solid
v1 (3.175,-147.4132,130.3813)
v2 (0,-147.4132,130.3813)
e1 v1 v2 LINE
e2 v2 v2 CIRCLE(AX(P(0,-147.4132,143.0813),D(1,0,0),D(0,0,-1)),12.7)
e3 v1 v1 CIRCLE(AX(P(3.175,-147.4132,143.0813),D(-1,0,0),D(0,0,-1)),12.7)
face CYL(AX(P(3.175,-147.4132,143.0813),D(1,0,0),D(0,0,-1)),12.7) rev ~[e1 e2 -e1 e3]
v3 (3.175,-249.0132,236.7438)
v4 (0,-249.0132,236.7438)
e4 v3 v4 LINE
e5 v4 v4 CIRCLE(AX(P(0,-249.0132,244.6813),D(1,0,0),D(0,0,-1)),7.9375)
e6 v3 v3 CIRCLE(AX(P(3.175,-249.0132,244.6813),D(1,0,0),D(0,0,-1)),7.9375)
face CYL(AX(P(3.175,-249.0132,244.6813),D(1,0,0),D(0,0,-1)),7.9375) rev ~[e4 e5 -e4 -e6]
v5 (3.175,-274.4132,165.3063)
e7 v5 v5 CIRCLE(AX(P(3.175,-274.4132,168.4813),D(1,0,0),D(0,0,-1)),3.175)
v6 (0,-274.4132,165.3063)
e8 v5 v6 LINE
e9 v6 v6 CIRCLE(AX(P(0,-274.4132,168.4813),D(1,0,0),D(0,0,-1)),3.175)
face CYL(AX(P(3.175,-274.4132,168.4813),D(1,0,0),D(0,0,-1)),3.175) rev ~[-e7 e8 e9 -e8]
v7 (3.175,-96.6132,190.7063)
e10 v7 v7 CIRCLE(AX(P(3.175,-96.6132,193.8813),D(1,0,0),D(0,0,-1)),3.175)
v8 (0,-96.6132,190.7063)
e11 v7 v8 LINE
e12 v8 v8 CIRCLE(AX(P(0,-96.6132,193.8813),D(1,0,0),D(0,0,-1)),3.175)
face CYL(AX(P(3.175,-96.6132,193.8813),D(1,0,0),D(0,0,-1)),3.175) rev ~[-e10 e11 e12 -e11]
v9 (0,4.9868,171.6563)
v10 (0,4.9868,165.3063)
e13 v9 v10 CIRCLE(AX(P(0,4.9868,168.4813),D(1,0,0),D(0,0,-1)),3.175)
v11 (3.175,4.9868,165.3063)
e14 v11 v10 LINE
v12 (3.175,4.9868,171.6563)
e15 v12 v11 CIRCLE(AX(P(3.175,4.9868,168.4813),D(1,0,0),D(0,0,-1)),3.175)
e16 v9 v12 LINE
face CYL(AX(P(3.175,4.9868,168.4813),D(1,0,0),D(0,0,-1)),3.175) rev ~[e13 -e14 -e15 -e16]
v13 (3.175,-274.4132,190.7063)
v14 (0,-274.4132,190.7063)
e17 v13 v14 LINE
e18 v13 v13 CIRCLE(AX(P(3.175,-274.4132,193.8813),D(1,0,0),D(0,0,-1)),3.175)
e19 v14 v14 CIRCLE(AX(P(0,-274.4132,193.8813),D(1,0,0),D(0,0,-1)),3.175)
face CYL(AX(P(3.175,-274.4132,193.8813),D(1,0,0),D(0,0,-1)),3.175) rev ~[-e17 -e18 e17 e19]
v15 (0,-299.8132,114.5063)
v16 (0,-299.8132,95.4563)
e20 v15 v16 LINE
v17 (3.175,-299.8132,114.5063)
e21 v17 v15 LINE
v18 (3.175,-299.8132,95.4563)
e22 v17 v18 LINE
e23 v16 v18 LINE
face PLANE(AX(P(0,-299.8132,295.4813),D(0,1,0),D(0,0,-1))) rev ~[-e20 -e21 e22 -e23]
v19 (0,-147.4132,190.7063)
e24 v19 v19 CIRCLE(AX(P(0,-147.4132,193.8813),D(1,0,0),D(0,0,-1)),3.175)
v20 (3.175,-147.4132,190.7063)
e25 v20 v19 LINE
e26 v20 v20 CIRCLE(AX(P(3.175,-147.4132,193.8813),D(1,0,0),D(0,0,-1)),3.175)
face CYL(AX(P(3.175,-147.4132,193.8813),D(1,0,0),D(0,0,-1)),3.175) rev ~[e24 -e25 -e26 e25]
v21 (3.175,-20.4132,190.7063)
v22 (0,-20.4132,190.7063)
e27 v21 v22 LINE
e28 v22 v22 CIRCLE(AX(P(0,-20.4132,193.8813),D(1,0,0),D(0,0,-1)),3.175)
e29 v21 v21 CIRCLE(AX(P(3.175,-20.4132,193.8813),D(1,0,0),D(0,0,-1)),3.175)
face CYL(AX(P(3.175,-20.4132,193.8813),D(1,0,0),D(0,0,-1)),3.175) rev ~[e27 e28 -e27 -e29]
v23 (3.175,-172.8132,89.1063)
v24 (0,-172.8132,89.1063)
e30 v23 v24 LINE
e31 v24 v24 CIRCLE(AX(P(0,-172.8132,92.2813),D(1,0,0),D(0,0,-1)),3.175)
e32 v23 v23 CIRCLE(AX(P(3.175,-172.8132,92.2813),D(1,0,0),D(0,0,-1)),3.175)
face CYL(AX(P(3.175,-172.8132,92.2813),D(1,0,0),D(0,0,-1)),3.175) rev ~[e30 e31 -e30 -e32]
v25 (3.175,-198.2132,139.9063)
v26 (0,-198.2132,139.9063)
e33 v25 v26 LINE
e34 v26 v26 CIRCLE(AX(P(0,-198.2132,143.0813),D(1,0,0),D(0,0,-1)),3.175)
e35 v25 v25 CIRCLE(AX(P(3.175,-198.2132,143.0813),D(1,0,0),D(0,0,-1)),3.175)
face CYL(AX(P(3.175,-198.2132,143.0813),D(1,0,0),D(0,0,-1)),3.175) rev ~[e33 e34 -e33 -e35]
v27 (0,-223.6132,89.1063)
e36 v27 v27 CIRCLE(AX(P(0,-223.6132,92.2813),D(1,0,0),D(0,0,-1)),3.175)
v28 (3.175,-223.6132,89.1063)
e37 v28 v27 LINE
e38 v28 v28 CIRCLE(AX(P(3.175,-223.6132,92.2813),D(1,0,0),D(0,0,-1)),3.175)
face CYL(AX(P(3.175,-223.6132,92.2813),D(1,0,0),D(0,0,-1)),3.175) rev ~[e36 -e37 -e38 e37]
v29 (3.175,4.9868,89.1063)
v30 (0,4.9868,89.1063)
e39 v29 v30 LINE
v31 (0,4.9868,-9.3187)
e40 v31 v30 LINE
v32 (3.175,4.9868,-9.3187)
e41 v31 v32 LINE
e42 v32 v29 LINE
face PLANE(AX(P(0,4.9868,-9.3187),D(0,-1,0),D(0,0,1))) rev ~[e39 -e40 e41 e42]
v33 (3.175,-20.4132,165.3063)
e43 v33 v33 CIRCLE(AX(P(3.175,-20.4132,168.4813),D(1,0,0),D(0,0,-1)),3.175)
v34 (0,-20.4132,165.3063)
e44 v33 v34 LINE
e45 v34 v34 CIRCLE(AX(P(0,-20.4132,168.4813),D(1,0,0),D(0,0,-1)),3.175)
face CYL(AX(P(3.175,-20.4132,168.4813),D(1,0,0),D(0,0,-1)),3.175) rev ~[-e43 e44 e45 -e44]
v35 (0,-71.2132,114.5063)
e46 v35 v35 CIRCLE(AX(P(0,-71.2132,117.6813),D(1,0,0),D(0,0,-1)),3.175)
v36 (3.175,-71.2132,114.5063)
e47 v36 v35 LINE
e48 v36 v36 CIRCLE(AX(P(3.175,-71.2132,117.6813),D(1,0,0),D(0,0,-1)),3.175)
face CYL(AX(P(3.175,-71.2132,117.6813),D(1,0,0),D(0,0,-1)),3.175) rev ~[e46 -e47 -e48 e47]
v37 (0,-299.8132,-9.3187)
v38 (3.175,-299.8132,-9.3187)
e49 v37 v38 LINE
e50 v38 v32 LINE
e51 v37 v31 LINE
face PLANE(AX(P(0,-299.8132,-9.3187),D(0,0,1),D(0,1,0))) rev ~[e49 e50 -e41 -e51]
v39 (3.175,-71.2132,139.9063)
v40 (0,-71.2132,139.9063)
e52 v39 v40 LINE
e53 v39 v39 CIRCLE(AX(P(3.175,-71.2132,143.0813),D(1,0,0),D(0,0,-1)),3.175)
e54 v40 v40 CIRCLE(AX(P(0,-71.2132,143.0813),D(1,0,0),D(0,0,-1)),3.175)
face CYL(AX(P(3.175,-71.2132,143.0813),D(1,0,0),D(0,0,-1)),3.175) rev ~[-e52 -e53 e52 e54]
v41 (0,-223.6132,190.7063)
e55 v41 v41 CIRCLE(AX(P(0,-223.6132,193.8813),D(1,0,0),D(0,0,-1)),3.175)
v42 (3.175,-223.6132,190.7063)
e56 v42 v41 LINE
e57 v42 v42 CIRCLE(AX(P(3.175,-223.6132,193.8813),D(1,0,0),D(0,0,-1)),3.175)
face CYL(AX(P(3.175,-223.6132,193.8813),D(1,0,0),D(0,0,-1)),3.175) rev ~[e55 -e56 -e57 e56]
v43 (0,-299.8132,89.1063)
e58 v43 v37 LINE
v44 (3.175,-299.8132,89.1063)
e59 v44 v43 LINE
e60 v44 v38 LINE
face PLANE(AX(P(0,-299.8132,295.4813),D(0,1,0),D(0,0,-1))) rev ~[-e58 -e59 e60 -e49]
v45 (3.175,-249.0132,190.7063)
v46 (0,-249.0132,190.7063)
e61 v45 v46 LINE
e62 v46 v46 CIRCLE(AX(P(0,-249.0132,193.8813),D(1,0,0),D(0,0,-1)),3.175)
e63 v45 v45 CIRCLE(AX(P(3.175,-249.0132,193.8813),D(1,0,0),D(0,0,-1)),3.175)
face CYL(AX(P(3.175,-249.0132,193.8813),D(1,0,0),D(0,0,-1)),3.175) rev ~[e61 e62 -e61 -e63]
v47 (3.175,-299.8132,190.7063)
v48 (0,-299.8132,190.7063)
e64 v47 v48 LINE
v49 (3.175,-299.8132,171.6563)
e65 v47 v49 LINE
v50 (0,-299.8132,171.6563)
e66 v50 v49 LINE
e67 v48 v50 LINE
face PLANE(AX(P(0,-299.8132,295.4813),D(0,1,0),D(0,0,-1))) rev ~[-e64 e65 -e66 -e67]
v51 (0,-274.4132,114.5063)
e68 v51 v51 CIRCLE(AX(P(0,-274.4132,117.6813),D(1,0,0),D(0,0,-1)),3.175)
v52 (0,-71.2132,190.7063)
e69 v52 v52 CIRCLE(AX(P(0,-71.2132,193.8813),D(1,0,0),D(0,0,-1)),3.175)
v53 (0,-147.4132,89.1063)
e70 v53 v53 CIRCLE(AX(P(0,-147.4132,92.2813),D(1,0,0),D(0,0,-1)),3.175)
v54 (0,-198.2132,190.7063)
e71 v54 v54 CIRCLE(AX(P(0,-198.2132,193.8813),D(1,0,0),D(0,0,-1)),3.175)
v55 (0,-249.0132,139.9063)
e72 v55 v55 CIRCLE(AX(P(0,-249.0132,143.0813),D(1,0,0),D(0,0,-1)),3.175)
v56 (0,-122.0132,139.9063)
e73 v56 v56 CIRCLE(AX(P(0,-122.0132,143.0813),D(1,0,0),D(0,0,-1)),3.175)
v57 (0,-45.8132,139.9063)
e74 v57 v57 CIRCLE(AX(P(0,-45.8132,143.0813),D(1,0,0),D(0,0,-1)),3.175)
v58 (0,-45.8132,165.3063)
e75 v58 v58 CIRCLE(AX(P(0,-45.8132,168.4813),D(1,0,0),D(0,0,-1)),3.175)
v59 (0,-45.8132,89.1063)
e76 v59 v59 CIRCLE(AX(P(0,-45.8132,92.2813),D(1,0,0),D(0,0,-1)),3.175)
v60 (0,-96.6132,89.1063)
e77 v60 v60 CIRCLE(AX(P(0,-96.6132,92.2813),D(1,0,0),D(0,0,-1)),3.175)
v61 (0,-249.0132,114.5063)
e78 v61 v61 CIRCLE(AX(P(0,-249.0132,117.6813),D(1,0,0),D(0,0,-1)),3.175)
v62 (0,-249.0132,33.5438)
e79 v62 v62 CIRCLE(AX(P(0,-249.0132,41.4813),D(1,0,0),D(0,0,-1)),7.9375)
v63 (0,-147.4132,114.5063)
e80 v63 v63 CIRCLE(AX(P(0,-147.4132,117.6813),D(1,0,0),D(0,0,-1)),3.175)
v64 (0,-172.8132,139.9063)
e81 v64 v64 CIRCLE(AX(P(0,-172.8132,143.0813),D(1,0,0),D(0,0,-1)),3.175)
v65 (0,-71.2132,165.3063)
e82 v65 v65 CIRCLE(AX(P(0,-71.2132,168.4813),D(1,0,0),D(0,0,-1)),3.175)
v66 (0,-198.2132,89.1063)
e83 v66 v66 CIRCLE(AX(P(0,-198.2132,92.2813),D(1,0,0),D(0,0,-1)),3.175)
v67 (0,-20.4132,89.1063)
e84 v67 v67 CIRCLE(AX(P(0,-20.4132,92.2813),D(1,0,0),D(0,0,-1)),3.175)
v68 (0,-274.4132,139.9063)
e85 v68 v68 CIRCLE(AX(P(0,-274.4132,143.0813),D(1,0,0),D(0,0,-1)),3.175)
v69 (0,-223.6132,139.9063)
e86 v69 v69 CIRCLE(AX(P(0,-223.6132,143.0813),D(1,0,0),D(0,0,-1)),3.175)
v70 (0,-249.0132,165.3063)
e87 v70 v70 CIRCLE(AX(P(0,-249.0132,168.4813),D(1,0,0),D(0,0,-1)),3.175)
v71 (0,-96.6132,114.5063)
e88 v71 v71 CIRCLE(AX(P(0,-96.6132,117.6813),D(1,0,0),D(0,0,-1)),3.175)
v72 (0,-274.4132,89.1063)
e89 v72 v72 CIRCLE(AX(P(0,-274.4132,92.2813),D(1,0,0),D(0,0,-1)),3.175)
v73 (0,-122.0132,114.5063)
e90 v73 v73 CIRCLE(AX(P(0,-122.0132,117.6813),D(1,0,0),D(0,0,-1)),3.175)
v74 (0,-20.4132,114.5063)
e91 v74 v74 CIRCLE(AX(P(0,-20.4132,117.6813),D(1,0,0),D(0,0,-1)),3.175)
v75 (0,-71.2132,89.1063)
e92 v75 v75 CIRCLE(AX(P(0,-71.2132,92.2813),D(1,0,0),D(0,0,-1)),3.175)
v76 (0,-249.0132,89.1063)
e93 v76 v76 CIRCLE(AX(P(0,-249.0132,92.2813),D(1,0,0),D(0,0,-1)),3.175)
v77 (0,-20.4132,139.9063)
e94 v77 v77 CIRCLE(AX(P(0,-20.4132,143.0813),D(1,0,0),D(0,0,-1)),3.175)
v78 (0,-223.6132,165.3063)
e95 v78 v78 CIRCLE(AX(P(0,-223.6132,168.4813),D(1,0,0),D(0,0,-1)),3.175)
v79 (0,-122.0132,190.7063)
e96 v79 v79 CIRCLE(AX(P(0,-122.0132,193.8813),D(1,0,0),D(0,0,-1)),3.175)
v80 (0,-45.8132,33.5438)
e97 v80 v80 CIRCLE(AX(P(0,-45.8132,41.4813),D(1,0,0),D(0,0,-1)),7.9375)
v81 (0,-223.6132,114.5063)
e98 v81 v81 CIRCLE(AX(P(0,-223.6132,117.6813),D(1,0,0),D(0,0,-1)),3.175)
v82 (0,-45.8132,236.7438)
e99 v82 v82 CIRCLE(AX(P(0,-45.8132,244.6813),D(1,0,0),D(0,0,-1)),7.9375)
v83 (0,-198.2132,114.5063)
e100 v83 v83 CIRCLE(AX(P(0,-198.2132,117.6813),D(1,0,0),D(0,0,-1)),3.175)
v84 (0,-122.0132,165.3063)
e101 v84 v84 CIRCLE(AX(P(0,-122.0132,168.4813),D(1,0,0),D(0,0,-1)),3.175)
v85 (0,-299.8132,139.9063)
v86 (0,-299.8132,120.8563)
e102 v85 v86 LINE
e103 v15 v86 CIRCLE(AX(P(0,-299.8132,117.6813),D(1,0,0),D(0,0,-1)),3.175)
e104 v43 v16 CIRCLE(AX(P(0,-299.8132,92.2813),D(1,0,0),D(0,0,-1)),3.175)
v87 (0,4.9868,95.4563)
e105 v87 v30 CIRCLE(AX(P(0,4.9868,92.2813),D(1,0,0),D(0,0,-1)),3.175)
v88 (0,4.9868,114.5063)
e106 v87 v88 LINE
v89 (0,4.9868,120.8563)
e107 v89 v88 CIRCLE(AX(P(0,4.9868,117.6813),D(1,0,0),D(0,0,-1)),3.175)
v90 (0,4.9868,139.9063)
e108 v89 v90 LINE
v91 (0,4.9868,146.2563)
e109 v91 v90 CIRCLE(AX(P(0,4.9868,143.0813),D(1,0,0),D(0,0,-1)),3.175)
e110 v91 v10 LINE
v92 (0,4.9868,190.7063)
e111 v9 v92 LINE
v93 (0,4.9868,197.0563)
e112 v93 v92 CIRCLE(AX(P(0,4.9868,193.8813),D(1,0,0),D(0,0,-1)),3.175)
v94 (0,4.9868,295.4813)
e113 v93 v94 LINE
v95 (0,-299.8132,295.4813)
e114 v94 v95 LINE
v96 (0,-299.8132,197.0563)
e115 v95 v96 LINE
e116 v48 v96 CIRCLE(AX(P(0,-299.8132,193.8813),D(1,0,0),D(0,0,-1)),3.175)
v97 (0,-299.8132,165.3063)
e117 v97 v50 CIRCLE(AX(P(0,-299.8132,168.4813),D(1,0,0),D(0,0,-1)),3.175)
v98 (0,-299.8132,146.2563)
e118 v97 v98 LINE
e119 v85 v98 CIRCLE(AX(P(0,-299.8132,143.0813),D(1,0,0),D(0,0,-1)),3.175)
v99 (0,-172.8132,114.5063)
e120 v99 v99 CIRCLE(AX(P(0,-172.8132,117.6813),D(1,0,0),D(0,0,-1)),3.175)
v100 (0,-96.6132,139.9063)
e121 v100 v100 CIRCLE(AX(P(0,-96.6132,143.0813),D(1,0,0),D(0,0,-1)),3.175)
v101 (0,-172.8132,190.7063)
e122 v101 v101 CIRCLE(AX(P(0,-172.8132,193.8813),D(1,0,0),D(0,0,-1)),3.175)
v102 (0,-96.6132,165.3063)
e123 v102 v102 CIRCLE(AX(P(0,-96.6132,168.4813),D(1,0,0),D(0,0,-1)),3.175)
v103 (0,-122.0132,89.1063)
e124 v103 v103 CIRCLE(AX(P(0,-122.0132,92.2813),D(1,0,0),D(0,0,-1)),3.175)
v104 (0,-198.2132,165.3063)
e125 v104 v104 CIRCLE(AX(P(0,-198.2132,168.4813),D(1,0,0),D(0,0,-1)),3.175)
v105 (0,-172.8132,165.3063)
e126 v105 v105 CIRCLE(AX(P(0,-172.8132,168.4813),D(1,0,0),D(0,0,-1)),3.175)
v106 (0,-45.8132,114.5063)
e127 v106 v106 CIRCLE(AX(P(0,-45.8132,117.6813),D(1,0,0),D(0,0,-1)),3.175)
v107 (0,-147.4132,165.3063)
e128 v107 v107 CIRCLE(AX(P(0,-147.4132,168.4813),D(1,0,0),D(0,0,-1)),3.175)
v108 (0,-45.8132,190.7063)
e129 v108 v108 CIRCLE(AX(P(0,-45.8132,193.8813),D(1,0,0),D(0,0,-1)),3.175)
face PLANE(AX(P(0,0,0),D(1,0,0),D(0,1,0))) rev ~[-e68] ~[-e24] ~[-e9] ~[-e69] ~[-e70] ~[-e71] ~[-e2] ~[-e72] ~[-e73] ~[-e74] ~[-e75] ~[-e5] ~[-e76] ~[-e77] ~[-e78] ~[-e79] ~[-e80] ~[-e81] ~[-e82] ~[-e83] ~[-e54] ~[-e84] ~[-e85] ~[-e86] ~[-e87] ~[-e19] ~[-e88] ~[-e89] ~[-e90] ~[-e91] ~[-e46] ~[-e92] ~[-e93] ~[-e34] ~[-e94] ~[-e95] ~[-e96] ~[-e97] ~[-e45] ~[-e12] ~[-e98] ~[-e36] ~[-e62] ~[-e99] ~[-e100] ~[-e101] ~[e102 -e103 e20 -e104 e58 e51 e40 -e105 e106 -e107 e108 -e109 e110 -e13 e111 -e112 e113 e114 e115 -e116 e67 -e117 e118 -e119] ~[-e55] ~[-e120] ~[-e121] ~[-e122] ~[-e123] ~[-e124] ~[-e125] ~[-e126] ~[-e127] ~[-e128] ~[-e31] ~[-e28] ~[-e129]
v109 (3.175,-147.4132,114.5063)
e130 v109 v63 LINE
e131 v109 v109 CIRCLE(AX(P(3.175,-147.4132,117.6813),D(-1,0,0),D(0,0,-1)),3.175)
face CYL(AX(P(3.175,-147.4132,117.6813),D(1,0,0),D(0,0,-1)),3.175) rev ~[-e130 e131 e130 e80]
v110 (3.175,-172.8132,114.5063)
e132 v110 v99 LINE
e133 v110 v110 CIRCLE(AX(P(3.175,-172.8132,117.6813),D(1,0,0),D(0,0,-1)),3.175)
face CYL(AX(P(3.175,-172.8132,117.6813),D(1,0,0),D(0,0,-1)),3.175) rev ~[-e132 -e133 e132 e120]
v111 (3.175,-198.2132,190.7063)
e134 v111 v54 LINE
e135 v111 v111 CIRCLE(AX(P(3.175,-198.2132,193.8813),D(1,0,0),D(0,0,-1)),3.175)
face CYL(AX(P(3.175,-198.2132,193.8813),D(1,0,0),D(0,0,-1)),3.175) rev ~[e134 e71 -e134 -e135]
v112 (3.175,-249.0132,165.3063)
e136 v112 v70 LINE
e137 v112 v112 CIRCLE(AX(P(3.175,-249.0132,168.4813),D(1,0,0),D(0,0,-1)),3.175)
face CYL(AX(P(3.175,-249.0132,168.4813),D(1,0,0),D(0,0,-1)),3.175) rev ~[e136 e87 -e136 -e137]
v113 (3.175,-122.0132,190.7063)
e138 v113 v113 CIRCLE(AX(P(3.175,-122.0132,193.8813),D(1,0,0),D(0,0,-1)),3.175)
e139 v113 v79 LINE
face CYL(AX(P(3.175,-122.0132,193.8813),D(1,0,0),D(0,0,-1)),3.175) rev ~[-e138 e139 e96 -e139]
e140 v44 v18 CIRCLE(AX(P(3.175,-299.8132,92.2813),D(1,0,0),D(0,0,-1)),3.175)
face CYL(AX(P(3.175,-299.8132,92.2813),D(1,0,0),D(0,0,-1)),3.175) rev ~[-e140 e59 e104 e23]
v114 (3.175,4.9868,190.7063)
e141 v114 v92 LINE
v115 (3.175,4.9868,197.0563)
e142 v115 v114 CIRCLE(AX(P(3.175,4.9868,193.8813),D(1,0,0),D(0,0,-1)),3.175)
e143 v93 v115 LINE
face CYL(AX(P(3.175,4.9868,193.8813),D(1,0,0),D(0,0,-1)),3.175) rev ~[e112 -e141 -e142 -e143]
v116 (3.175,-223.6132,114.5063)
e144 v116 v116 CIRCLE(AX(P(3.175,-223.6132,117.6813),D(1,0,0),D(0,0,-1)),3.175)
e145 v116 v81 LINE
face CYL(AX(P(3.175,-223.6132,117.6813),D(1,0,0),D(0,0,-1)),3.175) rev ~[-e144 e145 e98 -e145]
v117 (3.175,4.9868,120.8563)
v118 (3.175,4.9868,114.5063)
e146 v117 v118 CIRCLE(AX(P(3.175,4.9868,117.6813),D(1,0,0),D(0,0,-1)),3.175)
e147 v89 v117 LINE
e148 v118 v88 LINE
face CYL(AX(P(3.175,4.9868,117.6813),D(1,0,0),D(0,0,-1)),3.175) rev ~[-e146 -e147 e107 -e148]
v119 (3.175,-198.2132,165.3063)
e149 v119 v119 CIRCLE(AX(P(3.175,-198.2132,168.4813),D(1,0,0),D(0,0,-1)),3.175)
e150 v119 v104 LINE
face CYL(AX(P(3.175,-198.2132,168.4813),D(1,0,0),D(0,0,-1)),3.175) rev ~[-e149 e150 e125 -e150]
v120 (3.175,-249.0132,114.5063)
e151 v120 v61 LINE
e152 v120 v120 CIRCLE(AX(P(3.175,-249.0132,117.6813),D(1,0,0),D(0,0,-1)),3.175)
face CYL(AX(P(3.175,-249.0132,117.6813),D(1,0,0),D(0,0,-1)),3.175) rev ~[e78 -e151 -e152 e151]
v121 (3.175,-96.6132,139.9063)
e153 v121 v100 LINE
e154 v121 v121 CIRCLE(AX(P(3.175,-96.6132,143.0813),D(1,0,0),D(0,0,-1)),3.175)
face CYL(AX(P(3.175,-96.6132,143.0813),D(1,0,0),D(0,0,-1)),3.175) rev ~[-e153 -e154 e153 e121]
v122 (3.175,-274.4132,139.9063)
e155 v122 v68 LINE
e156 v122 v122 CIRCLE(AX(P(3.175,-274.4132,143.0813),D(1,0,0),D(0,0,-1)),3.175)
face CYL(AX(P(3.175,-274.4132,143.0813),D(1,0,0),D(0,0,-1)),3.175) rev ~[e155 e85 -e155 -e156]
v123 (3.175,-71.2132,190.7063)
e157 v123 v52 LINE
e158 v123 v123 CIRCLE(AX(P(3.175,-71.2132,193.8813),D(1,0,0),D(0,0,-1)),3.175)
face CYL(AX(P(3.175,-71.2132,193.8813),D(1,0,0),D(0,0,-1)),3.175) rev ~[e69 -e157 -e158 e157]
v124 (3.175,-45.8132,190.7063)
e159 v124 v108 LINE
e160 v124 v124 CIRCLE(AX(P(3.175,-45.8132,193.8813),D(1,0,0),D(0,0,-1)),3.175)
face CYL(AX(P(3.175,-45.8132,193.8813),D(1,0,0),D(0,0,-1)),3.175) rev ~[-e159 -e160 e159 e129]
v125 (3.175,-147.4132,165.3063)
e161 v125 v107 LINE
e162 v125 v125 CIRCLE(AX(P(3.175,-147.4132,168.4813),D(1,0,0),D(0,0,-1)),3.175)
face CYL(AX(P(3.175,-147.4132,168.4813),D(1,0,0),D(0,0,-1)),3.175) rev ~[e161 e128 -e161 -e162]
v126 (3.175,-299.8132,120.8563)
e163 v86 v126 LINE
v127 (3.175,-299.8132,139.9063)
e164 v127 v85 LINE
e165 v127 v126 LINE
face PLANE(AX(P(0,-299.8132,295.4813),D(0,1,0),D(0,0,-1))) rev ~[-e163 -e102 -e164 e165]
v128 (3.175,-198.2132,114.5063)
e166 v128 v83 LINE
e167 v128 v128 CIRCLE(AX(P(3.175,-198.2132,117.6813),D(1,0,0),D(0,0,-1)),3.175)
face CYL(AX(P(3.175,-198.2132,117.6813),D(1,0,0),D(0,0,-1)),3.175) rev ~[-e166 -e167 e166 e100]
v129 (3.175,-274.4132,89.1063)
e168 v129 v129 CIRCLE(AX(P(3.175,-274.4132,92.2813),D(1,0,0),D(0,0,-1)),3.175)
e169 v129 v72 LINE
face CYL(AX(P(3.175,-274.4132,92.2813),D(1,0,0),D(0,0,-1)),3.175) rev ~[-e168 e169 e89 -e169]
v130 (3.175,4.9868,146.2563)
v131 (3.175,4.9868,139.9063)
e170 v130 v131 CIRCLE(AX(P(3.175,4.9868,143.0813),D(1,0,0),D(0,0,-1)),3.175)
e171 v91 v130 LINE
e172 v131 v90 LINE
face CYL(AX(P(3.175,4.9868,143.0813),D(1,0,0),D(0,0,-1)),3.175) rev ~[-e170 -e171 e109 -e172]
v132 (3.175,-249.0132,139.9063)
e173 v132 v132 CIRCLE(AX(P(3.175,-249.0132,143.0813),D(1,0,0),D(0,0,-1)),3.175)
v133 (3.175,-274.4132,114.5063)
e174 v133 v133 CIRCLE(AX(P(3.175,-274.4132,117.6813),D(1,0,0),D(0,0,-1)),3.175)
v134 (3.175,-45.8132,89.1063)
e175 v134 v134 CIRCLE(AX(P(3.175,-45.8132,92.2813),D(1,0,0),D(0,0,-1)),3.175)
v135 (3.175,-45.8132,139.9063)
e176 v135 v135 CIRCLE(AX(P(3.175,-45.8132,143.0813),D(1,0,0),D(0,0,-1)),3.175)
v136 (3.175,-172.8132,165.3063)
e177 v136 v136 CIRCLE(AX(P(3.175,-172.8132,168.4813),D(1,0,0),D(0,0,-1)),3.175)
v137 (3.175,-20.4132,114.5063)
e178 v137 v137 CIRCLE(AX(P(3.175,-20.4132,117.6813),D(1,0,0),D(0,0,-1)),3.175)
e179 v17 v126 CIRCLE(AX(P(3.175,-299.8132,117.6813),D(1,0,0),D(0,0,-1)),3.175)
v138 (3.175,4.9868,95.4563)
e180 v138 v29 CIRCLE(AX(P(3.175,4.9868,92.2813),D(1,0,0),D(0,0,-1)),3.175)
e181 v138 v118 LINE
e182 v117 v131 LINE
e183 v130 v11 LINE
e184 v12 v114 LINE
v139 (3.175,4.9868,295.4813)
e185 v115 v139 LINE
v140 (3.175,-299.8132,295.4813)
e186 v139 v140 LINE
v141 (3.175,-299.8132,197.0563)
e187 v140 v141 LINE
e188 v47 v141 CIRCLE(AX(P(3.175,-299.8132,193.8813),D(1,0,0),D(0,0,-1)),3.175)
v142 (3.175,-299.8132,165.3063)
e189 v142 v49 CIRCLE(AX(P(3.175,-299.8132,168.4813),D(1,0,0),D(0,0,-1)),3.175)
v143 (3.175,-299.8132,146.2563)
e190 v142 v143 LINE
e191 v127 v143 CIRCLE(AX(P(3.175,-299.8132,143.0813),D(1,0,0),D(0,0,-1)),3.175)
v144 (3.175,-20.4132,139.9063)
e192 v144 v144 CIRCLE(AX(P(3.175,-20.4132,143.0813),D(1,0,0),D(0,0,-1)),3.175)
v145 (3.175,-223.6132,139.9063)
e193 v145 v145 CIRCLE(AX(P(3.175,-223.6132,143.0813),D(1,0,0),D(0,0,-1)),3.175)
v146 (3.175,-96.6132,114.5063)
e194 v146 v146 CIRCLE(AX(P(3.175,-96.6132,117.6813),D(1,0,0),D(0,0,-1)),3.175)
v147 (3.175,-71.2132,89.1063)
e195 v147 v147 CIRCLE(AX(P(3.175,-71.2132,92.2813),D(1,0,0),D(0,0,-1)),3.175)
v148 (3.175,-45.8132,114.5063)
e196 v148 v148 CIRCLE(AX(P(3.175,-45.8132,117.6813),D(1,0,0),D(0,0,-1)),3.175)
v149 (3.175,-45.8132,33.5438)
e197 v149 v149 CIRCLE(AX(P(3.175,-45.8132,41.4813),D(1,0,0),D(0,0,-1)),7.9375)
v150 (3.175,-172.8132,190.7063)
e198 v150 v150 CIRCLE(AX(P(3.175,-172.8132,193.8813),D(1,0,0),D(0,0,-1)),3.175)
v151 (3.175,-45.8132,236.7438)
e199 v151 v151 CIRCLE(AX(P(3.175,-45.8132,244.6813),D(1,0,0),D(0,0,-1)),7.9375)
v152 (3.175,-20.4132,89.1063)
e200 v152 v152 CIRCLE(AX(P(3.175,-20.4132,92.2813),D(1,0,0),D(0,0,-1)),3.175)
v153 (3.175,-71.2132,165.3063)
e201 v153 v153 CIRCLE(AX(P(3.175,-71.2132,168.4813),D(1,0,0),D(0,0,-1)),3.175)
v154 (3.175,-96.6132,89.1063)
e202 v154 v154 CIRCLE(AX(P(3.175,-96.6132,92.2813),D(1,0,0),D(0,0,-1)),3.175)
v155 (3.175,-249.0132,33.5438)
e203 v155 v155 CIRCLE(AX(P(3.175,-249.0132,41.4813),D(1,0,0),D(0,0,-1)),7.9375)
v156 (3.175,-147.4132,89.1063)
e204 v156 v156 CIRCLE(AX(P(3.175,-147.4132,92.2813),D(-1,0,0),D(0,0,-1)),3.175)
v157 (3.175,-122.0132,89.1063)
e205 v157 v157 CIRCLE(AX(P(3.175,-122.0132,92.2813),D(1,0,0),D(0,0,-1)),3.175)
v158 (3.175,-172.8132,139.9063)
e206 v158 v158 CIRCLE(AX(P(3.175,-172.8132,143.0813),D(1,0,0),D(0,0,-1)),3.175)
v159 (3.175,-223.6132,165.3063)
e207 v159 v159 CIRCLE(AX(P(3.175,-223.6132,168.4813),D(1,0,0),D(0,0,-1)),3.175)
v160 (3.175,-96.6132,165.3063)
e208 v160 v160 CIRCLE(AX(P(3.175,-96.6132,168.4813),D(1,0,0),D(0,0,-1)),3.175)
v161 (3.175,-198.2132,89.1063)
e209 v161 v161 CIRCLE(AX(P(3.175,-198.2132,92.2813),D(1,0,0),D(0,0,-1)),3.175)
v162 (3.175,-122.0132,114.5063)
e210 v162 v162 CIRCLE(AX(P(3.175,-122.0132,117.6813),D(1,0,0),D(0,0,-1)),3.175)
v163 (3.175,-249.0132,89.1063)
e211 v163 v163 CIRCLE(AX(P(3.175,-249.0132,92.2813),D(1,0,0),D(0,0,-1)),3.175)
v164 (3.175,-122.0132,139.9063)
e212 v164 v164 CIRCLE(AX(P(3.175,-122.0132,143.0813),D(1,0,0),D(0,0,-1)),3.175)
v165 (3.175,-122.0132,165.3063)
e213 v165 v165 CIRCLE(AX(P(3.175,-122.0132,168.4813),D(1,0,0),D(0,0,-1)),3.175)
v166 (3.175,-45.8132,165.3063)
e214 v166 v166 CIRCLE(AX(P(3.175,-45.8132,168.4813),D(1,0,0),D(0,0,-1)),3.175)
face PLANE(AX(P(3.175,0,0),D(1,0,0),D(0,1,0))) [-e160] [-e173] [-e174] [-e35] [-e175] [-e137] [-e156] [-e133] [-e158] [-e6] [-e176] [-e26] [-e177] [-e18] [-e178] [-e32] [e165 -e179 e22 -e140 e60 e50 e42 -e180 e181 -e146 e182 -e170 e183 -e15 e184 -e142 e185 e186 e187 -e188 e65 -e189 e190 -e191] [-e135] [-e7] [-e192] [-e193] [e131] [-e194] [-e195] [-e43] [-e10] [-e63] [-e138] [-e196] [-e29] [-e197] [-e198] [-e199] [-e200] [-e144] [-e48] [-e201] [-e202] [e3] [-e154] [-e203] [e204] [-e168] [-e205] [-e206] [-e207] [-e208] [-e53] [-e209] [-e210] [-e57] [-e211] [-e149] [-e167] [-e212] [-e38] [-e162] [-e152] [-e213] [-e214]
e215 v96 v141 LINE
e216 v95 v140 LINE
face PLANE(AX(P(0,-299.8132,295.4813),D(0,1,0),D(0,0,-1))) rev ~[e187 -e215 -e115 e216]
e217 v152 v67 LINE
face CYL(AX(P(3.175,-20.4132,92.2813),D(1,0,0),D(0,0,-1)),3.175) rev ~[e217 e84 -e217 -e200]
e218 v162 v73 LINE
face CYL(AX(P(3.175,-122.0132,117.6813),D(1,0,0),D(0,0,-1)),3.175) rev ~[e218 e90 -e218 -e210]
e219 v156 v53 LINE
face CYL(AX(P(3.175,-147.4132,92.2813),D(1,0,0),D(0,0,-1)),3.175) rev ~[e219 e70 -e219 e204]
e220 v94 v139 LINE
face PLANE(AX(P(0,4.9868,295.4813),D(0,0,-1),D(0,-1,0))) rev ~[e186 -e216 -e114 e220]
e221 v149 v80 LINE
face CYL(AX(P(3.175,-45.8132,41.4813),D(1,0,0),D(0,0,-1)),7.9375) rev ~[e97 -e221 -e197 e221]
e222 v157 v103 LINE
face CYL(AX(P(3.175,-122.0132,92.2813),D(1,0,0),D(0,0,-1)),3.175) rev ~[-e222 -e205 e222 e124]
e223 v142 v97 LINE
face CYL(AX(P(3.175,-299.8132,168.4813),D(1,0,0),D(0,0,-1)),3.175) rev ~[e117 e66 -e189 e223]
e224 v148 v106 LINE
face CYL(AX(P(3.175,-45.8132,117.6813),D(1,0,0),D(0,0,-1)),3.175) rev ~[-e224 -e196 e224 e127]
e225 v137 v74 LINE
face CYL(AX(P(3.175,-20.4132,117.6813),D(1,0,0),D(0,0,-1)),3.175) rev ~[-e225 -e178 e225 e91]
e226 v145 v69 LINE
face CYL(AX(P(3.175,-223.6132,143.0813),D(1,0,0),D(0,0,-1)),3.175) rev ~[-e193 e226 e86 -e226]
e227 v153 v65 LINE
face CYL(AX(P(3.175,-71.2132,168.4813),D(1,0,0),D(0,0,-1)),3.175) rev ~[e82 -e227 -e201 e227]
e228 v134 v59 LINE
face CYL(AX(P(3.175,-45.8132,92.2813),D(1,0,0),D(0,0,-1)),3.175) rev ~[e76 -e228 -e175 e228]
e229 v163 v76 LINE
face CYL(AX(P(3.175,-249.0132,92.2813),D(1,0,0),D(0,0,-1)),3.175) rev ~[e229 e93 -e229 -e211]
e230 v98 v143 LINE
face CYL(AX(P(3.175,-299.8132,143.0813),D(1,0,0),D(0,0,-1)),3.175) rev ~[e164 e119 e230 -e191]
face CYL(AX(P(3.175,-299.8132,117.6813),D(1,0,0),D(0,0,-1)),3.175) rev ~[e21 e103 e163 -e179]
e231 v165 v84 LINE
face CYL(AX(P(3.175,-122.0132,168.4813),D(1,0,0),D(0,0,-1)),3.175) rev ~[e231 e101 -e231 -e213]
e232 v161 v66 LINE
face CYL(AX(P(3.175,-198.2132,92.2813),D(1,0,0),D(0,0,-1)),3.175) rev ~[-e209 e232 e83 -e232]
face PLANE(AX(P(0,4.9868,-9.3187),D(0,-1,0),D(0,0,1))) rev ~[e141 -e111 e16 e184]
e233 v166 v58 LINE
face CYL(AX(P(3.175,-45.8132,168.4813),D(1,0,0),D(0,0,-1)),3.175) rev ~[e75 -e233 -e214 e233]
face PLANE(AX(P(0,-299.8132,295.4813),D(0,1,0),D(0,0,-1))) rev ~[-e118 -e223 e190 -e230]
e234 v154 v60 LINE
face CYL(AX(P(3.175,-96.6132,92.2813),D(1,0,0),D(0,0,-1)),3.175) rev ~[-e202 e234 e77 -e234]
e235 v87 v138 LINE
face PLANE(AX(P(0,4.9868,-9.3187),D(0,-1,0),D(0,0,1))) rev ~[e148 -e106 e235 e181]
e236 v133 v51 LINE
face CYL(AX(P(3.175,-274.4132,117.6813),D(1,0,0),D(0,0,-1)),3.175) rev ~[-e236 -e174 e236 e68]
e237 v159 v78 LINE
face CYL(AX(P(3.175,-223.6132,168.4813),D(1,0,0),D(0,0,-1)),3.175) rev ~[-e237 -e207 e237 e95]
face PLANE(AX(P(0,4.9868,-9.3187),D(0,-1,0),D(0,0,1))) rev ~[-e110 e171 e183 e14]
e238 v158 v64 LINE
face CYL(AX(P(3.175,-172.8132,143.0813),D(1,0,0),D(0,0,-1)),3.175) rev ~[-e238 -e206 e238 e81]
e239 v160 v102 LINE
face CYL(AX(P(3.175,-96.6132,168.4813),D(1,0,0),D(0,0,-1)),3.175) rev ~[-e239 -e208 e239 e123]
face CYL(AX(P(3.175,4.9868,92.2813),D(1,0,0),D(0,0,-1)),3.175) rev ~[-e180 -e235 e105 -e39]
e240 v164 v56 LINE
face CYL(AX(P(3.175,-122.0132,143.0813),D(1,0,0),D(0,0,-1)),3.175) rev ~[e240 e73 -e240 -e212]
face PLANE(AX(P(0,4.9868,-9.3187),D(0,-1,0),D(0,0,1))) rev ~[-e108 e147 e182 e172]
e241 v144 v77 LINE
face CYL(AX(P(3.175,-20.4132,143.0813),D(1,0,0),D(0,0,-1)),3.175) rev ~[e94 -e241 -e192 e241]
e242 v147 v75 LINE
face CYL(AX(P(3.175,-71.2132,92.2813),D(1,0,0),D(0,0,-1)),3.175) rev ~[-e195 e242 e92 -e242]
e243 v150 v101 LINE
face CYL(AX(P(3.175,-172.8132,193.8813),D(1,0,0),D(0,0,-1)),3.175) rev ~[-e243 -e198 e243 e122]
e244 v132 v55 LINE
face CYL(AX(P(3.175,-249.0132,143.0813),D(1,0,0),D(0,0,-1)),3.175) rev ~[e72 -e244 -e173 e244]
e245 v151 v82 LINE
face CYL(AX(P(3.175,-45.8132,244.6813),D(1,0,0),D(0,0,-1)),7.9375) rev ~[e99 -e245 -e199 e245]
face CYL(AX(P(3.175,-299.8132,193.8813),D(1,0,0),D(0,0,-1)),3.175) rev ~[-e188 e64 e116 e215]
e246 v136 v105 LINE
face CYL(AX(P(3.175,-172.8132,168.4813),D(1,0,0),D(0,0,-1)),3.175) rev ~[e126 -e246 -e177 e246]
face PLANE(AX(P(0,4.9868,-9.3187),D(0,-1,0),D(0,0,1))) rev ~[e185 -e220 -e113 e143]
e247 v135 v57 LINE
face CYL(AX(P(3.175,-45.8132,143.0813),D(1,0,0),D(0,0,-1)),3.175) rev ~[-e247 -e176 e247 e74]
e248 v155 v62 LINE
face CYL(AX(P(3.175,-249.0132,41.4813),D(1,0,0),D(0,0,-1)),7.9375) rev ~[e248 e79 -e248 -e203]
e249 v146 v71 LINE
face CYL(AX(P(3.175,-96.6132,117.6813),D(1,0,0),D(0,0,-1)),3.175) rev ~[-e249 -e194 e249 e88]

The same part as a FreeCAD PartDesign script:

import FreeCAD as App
import Part
import Sketcher
Q = App.Units.Quantity

doc = App.newDocument("Part")
body = doc.addObject("PartDesign::Body", "Body")

# Sketch on YZ plane
sketch1 = body.newObject("Sketcher::SketchObject", "Sketch")
sketch1.AttachmentSupport = (doc.getObject("YZ_Plane"), [""])
sketch1.MapMode = "FlatFace"
sketch1.addGeometry([
    Part.LineSegment(App.Vector(4.9868, -9.3187, 0), App.Vector(4.9868, 295.4813, 0)),
    Part.LineSegment(App.Vector(4.9868, 295.4813, 0), App.Vector(-299.8132, 295.4813, 0)),
    Part.LineSegment(App.Vector(-299.8132, 295.4813, 0), App.Vector(-299.8132, -9.3187, 0)),
    Part.LineSegment(App.Vector(-299.8132, -9.3187, 0), App.Vector(4.9868, -9.3187, 0)),
], False)
sketch1.addConstraint([
    Sketcher.Constraint("Coincident", 0, 2, 1, 1),
    Sketcher.Constraint("Coincident", 1, 2, 2, 1),
    Sketcher.Constraint("Coincident", 2, 2, 3, 1),
    Sketcher.Constraint("Coincident", 3, 2, 0, 1),
    Sketcher.Constraint("Vertical", 0),
    Sketcher.Constraint("Horizontal", 1),
    Sketcher.Constraint("Vertical", 2),
    Sketcher.Constraint("Horizontal", 3),
    Sketcher.Constraint("Equal", 3, 0),
    Sketcher.Constraint("DistanceX", 1, 2, 1, 1, Q("12 in")),
    Sketcher.Constraint("DistanceX", -1, 1, 0, 2, Q("4.9868 mm")),
    Sketcher.Constraint("DistanceY", -1, 1, 0, 2, Q("295.4813 mm")),
])
pad1 = body.newObject("PartDesign::Pad", "Pad")
pad1.Profile = sketch1
pad1.Length = Q("0.125 in")

# Sketch on YZ plane
sketch2 = body.newObject("Sketcher::SketchObject", "Sketch001")
sketch2.AttachmentSupport = (doc.getObject("YZ_Plane"), [""])
sketch2.MapMode = "FlatFace"
sketch2.AttachmentOffset = App.Placement(App.Vector(0, 0, 0.125 * 25.4), App.Rotation())
sketch2.addGeometry(Part.Circle(App.Vector(-147.4132, 143.0813, 0), App.Vector(0, 0, 1), 12.7), False)
sketch2.addConstraint([
    Sketcher.Constraint("Diameter", 0, Q("1 in")),
    Sketcher.Constraint("DistanceX", 0, 3, -1, 1, Q("147.4132 mm")),
    Sketcher.Constraint("DistanceY", -1, 1, 0, 3, Q("143.0813 mm")),
])
pocket1 = body.newObject("PartDesign::Pocket", "Pocket")
pocket1.Profile = sketch2
pocket1.Length = Q("2 in")

# Sketch on YZ plane
sketch3 = body.newObject("Sketcher::SketchObject", "Sketch002")
sketch3.AttachmentSupport = (doc.getObject("YZ_Plane"), [""])
sketch3.MapMode = "FlatFace"
sketch3.AttachmentOffset = App.Placement(App.Vector(0, 0, 0.125 * 25.4), App.Rotation())
sketch3.addGeometry([
    Part.Circle(App.Vector(-147.4132, 143.0813, 0), App.Vector(0, 0, 1), 12.7),  # 0
    Part.Circle(App.Vector(-122.0132, 143.0813, 0), App.Vector(0, 0, 1), 3.175),  # 1
    Part.Circle(App.Vector(-96.6132, 143.0813, 0), App.Vector(0, 0, 1), 3.175),  # 2
    Part.Circle(App.Vector(-71.2132, 143.0813, 0), App.Vector(0, 0, 1), 3.175),  # 3
    Part.Circle(App.Vector(-45.8132, 143.0813, 0), App.Vector(0, 0, 1), 3.175),  # 4
    Part.Circle(App.Vector(-20.4132, 143.0813, 0), App.Vector(0, 0, 1), 3.175),  # 5
    Part.Circle(App.Vector(4.9868, 143.0813, 0), App.Vector(0, 0, 1), 3.175),  # 6
    Part.Circle(App.Vector(-172.8132, 143.0813, 0), App.Vector(0, 0, 1), 3.175),  # 7
    Part.Circle(App.Vector(-198.2132, 143.0813, 0), App.Vector(0, 0, 1), 3.175),  # 8
    Part.Circle(App.Vector(-249.0132, 143.0813, 0), App.Vector(0, 0, 1), 3.175),  # 9
    Part.Circle(App.Vector(-223.6132, 143.0813, 0), App.Vector(0, 0, 1), 3.175),  # 10
    Part.Circle(App.Vector(-299.8132, 143.0813, 0), App.Vector(0, 0, 1), 3.175),  # 11
    Part.Circle(App.Vector(-274.4132, 143.0813, 0), App.Vector(0, 0, 1), 3.175),  # 12
    Part.Circle(App.Vector(-122.0132, 168.4813, 0), App.Vector(0, 0, 1), 3.175),  # 13
    Part.Circle(App.Vector(-96.6132, 168.4813, 0), App.Vector(0, 0, 1), 3.175),  # 14
    Part.Circle(App.Vector(-45.8132, 168.4813, 0), App.Vector(0, 0, 1), 3.175),  # 15
    Part.Circle(App.Vector(-71.2132, 168.4813, 0), App.Vector(0, 0, 1), 3.175),  # 16
    Part.Circle(App.Vector(4.9868, 168.4813, 0), App.Vector(0, 0, 1), 3.175),  # 17
    Part.Circle(App.Vector(-20.4132, 168.4813, 0), App.Vector(0, 0, 1), 3.175),  # 18
    Part.Circle(App.Vector(-299.8132, 168.4813, 0), App.Vector(0, 0, 1), 3.175),  # 19
    Part.Circle(App.Vector(-249.0132, 168.4813, 0), App.Vector(0, 0, 1), 3.175),  # 20
    Part.Circle(App.Vector(-274.4132, 168.4813, 0), App.Vector(0, 0, 1), 3.175),  # 21
    Part.Circle(App.Vector(-223.6132, 168.4813, 0), App.Vector(0, 0, 1), 3.175),  # 22
    Part.Circle(App.Vector(-198.2132, 168.4813, 0), App.Vector(0, 0, 1), 3.175),  # 23
    Part.Circle(App.Vector(-172.8132, 168.4813, 0), App.Vector(0, 0, 1), 3.175),  # 24
    Part.Circle(App.Vector(-122.0132, 117.6813, 0), App.Vector(0, 0, 1), 3.175),  # 25
    Part.Circle(App.Vector(-96.6132, 117.6813, 0), App.Vector(0, 0, 1), 3.175),  # 26
    Part.Circle(App.Vector(-45.8132, 117.6813, 0), App.Vector(0, 0, 1), 3.175),  # 27
    Part.Circle(App.Vector(-71.2132, 117.6813, 0), App.Vector(0, 0, 1), 3.175),  # 28
    Part.Circle(App.Vector(4.9868, 117.6813, 0), App.Vector(0, 0, 1), 3.175),  # 29
    Part.Circle(App.Vector(-20.4132, 117.6813, 0), App.Vector(0, 0, 1), 3.175),  # 30
    Part.Circle(App.Vector(-299.8132, 117.6813, 0), App.Vector(0, 0, 1), 3.175),  # 31
    Part.Circle(App.Vector(-249.0132, 117.6813, 0), App.Vector(0, 0, 1), 3.175),  # 32
    Part.Circle(App.Vector(-274.4132, 117.6813, 0), App.Vector(0, 0, 1), 3.175),  # 33
    Part.Circle(App.Vector(-223.6132, 117.6813, 0), App.Vector(0, 0, 1), 3.175),  # 34
    Part.Circle(App.Vector(-198.2132, 117.6813, 0), App.Vector(0, 0, 1), 3.175),  # 35
    Part.Circle(App.Vector(-172.8132, 117.6813, 0), App.Vector(0, 0, 1), 3.175),  # 36
    Part.Circle(App.Vector(-122.0132, 193.8813, 0), App.Vector(0, 0, 1), 3.175),  # 37
    Part.Circle(App.Vector(-96.6132, 193.8813, 0), App.Vector(0, 0, 1), 3.175),  # 38
    Part.Circle(App.Vector(-45.8132, 193.8813, 0), App.Vector(0, 0, 1), 3.175),  # 39
    Part.Circle(App.Vector(-71.2132, 193.8813, 0), App.Vector(0, 0, 1), 3.175),  # 40
    Part.Circle(App.Vector(4.9868, 193.8813, 0), App.Vector(0, 0, 1), 3.175),  # 41
    Part.Circle(App.Vector(-20.4132, 193.8813, 0), App.Vector(0, 0, 1), 3.175),  # 42
    Part.Circle(App.Vector(-299.8132, 193.8813, 0), App.Vector(0, 0, 1), 3.175),  # 43
    Part.Circle(App.Vector(-249.0132, 193.8813, 0), App.Vector(0, 0, 1), 3.175),  # 44
    Part.Circle(App.Vector(-274.4132, 193.8813, 0), App.Vector(0, 0, 1), 3.175),  # 45
    Part.Circle(App.Vector(-223.6132, 193.8813, 0), App.Vector(0, 0, 1), 3.175),  # 46
    Part.Circle(App.Vector(-198.2132, 193.8813, 0), App.Vector(0, 0, 1), 3.175),  # 47
    Part.Circle(App.Vector(-172.8132, 193.8813, 0), App.Vector(0, 0, 1), 3.175),  # 48
    Part.Circle(App.Vector(-122.0132, 92.2813, 0), App.Vector(0, 0, 1), 3.175),  # 49
    Part.Circle(App.Vector(-96.6132, 92.2813, 0), App.Vector(0, 0, 1), 3.175),  # 50
    Part.Circle(App.Vector(-45.8132, 92.2813, 0), App.Vector(0, 0, 1), 3.175),  # 51
    Part.Circle(App.Vector(-71.2132, 92.2813, 0), App.Vector(0, 0, 1), 3.175),  # 52
    Part.Circle(App.Vector(4.9868, 92.2813, 0), App.Vector(0, 0, 1), 3.175),  # 53
    Part.Circle(App.Vector(-20.4132, 92.2813, 0), App.Vector(0, 0, 1), 3.175),  # 54
    Part.Circle(App.Vector(-299.8132, 92.2813, 0), App.Vector(0, 0, 1), 3.175),  # 55
    Part.Circle(App.Vector(-249.0132, 92.2813, 0), App.Vector(0, 0, 1), 3.175),  # 56
    Part.Circle(App.Vector(-274.4132, 92.2813, 0), App.Vector(0, 0, 1), 3.175),  # 57
    Part.Circle(App.Vector(-223.6132, 92.2813, 0), App.Vector(0, 0, 1), 3.175),  # 58
    Part.Circle(App.Vector(-198.2132, 92.2813, 0), App.Vector(0, 0, 1), 3.175),  # 59
    Part.Circle(App.Vector(-172.8132, 92.2813, 0), App.Vector(0, 0, 1), 3.175),  # 60
], False)
sketch3.addConstraint([
    Sketcher.Constraint("Equal", 1, 2),
    Sketcher.Constraint("Equal", 2, 3),
    Sketcher.Constraint("Equal", 3, 4),
    Sketcher.Constraint("Equal", 4, 5),
    Sketcher.Constraint("Equal", 5, 6),
    Sketcher.Constraint("Equal", 6, 7),
    Sketcher.Constraint("Equal", 7, 8),
    Sketcher.Constraint("Equal", 8, 9),
    Sketcher.Constraint("Equal", 9, 10),
    Sketcher.Constraint("Equal", 10, 11),
    Sketcher.Constraint("Equal", 11, 12),
    Sketcher.Constraint("Equal", 12, 13),
    Sketcher.Constraint("Equal", 13, 14),
    Sketcher.Constraint("Equal", 14, 15),
    Sketcher.Constraint("Equal", 15, 16),
    Sketcher.Constraint("Equal", 16, 17),
    Sketcher.Constraint("Equal", 17, 18),
    Sketcher.Constraint("Equal", 18, 19),
    Sketcher.Constraint("Equal", 19, 20),
    Sketcher.Constraint("Equal", 20, 21),
    Sketcher.Constraint("Equal", 21, 22),
    Sketcher.Constraint("Equal", 22, 23),
    Sketcher.Constraint("Equal", 23, 24),
    Sketcher.Constraint("Equal", 24, 25),
    Sketcher.Constraint("Equal", 25, 26),
    Sketcher.Constraint("Equal", 26, 27),
    Sketcher.Constraint("Equal", 27, 28),
    Sketcher.Constraint("Equal", 28, 29),
    Sketcher.Constraint("Equal", 29, 30),
    Sketcher.Constraint("Equal", 30, 31),
    Sketcher.Constraint("Equal", 31, 32),
    Sketcher.Constraint("Equal", 32, 33),
    Sketcher.Constraint("Equal", 33, 34),
    Sketcher.Constraint("Equal", 34, 35),
    Sketcher.Constraint("Equal", 35, 36),
    Sketcher.Constraint("Equal", 36, 37),
    Sketcher.Constraint("Equal", 37, 38),
    Sketcher.Constraint("Equal", 38, 39),
    Sketcher.Constraint("Equal", 39, 40),
    Sketcher.Constraint("Equal", 40, 41),
    Sketcher.Constraint("Equal", 41, 42),
    Sketcher.Constraint("Equal", 42, 43),
    Sketcher.Constraint("Equal", 43, 44),
    Sketcher.Constraint("Equal", 44, 45),
    Sketcher.Constraint("Equal", 45, 46),
    Sketcher.Constraint("Equal", 46, 47),
    Sketcher.Constraint("Equal", 47, 48),
    Sketcher.Constraint("Equal", 48, 49),
    Sketcher.Constraint("Equal", 49, 50),
    Sketcher.Constraint("Equal", 50, 51),
    Sketcher.Constraint("Equal", 51, 52),
    Sketcher.Constraint("Equal", 52, 53),
    Sketcher.Constraint("Equal", 53, 54),
    Sketcher.Constraint("Equal", 54, 55),
    Sketcher.Constraint("Equal", 55, 56),
    Sketcher.Constraint("Equal", 56, 57),
    Sketcher.Constraint("Equal", 57, 58),
    Sketcher.Constraint("Equal", 58, 59),
    Sketcher.Constraint("Equal", 59, 60),
    Sketcher.Constraint("Horizontal", 0, 3, 1, 3),
    Sketcher.Constraint("Horizontal", 1, 3, 2, 3),
    Sketcher.Constraint("Horizontal", 2, 3, 3, 3),
    Sketcher.Constraint("Horizontal", 3, 3, 4, 3),
    Sketcher.Constraint("Horizontal", 4, 3, 5, 3),
    Sketcher.Constraint("Horizontal", 5, 3, 6, 3),
    Sketcher.Constraint("Horizontal", 6, 3, 7, 3),
    Sketcher.Constraint("Horizontal", 7, 3, 8, 3),
    Sketcher.Constraint("Horizontal", 8, 3, 9, 3),
    Sketcher.Constraint("Horizontal", 9, 3, 10, 3),
    Sketcher.Constraint("Horizontal", 10, 3, 11, 3),
    Sketcher.Constraint("Horizontal", 11, 3, 12, 3),
    Sketcher.Constraint("Horizontal", 13, 3, 14, 3),
    Sketcher.Constraint("Horizontal", 14, 3, 15, 3),
    Sketcher.Constraint("Horizontal", 15, 3, 16, 3),
    Sketcher.Constraint("Horizontal", 16, 3, 17, 3),
    Sketcher.Constraint("Horizontal", 17, 3, 18, 3),
    Sketcher.Constraint("Horizontal", 18, 3, 19, 3),
    Sketcher.Constraint("Horizontal", 19, 3, 20, 3),
    Sketcher.Constraint("Horizontal", 20, 3, 21, 3),
    Sketcher.Constraint("Horizontal", 21, 3, 22, 3),
    Sketcher.Constraint("Horizontal", 22, 3, 23, 3),
    Sketcher.Constraint("Horizontal", 23, 3, 24, 3),
    Sketcher.Constraint("Horizontal", 25, 3, 26, 3),
    Sketcher.Constraint("Horizontal", 26, 3, 27, 3),
    Sketcher.Constraint("Horizontal", 27, 3, 28, 3),
    Sketcher.Constraint("Horizontal", 28, 3, 29, 3),
    Sketcher.Constraint("Horizontal", 29, 3, 30, 3),
    Sketcher.Constraint("Horizontal", 30, 3, 31, 3),
    Sketcher.Constraint("Horizontal", 31, 3, 32, 3),
    Sketcher.Constraint("Horizontal", 32, 3, 33, 3),
    Sketcher.Constraint("Horizontal", 33, 3, 34, 3),
    Sketcher.Constraint("Horizontal", 34, 3, 35, 3),
    Sketcher.Constraint("Horizontal", 35, 3, 36, 3),
    Sketcher.Constraint("Horizontal", 37, 3, 38, 3),
    Sketcher.Constraint("Horizontal", 38, 3, 39, 3),
    Sketcher.Constraint("Horizontal", 39, 3, 40, 3),
    Sketcher.Constraint("Horizontal", 40, 3, 41, 3),
    Sketcher.Constraint("Horizontal", 41, 3, 42, 3),
    Sketcher.Constraint("Horizontal", 42, 3, 43, 3),
    Sketcher.Constraint("Horizontal", 43, 3, 44, 3),
    Sketcher.Constraint("Horizontal", 44, 3, 45, 3),
    Sketcher.Constraint("Horizontal", 45, 3, 46, 3),
    Sketcher.Constraint("Horizontal", 46, 3, 47, 3),
    Sketcher.Constraint("Horizontal", 47, 3, 48, 3),
    Sketcher.Constraint("Horizontal", 49, 3, 50, 3),
    Sketcher.Constraint("Horizontal", 50, 3, 51, 3),
    Sketcher.Constraint("Horizontal", 51, 3, 52, 3),
    Sketcher.Constraint("Horizontal", 52, 3, 53, 3),
    Sketcher.Constraint("Horizontal", 53, 3, 54, 3),
    Sketcher.Constraint("Horizontal", 54, 3, 55, 3),
    Sketcher.Constraint("Horizontal", 55, 3, 56, 3),
    Sketcher.Constraint("Horizontal", 56, 3, 57, 3),
    Sketcher.Constraint("Horizontal", 57, 3, 58, 3),
    Sketcher.Constraint("Horizontal", 58, 3, 59, 3),
    Sketcher.Constraint("Horizontal", 59, 3, 60, 3),
    Sketcher.Constraint("Vertical", 1, 3, 13, 3),
    Sketcher.Constraint("Vertical", 2, 3, 14, 3),
    Sketcher.Constraint("Vertical", 4, 3, 15, 3),
    Sketcher.Constraint("Vertical", 3, 3, 16, 3),
    Sketcher.Constraint("Vertical", 6, 3, 17, 3),
    Sketcher.Constraint("Vertical", 5, 3, 18, 3),
    Sketcher.Constraint("Vertical", 11, 3, 19, 3),
    Sketcher.Constraint("Vertical", 9, 3, 20, 3),
    Sketcher.Constraint("Vertical", 12, 3, 21, 3),
    Sketcher.Constraint("Vertical", 10, 3, 22, 3),
    Sketcher.Constraint("Vertical", 8, 3, 23, 3),
    Sketcher.Constraint("Vertical", 7, 3, 24, 3),
    Sketcher.Constraint("Vertical", 13, 3, 25, 3),
    Sketcher.Constraint("Vertical", 14, 3, 26, 3),
    Sketcher.Constraint("Vertical", 15, 3, 27, 3),
    Sketcher.Constraint("Vertical", 16, 3, 28, 3),
    Sketcher.Constraint("Vertical", 17, 3, 29, 3),
    Sketcher.Constraint("Vertical", 18, 3, 30, 3),
    Sketcher.Constraint("Vertical", 19, 3, 31, 3),
    Sketcher.Constraint("Vertical", 20, 3, 32, 3),
    Sketcher.Constraint("Vertical", 21, 3, 33, 3),
    Sketcher.Constraint("Vertical", 22, 3, 34, 3),
    Sketcher.Constraint("Vertical", 23, 3, 35, 3),
    Sketcher.Constraint("Vertical", 24, 3, 36, 3),
    Sketcher.Constraint("Vertical", 25, 3, 37, 3),
    Sketcher.Constraint("Vertical", 26, 3, 38, 3),
    Sketcher.Constraint("Vertical", 27, 3, 39, 3),
    Sketcher.Constraint("Vertical", 28, 3, 40, 3),
    Sketcher.Constraint("Vertical", 29, 3, 41, 3),
    Sketcher.Constraint("Vertical", 30, 3, 42, 3),
    Sketcher.Constraint("Vertical", 31, 3, 43, 3),
    Sketcher.Constraint("Vertical", 32, 3, 44, 3),
    Sketcher.Constraint("Vertical", 33, 3, 45, 3),
    Sketcher.Constraint("Vertical", 34, 3, 46, 3),
    Sketcher.Constraint("Vertical", 35, 3, 47, 3),
    Sketcher.Constraint("Vertical", 36, 3, 48, 3),
    Sketcher.Constraint("Vertical", 37, 3, 49, 3),
    Sketcher.Constraint("Vertical", 38, 3, 50, 3),
    Sketcher.Constraint("Vertical", 39, 3, 51, 3),
    Sketcher.Constraint("Vertical", 40, 3, 52, 3),
    Sketcher.Constraint("Vertical", 41, 3, 53, 3),
    Sketcher.Constraint("Vertical", 42, 3, 54, 3),
    Sketcher.Constraint("Vertical", 43, 3, 55, 3),
    Sketcher.Constraint("Vertical", 44, 3, 56, 3),
    Sketcher.Constraint("Vertical", 45, 3, 57, 3),
    Sketcher.Constraint("Vertical", 46, 3, 58, 3),
    Sketcher.Constraint("Vertical", 47, 3, 59, 3),
    Sketcher.Constraint("Vertical", 48, 3, 60, 3),
    Sketcher.Constraint("Diameter", 1, Q("0.25 in")),
    Sketcher.Constraint("Diameter", 0, Q("1 in")),
    Sketcher.Constraint("DistanceX", 0, 3, -1, 1, Q("147.4132 mm")),
    Sketcher.Constraint("DistanceY", -1, 1, 0, 3, Q("143.0813 mm")),
    Sketcher.Constraint("DistanceX", 1, 3, -1, 1, Q("122.0132 mm")),
    Sketcher.Constraint("DistanceX", 2, 3, -1, 1, Q("96.6132 mm")),
    Sketcher.Constraint("DistanceX", 3, 3, -1, 1, Q("71.2132 mm")),
    Sketcher.Constraint("DistanceX", 4, 3, -1, 1, Q("45.8132 mm")),
    Sketcher.Constraint("DistanceX", 5, 3, -1, 1, Q("20.4132 mm")),
    Sketcher.Constraint("DistanceX", -1, 1, 6, 3, Q("4.9868 mm")),
    Sketcher.Constraint("DistanceX", 7, 3, -1, 1, Q("172.8132 mm")),
    Sketcher.Constraint("DistanceX", 8, 3, -1, 1, Q("198.2132 mm")),
    Sketcher.Constraint("DistanceX", 9, 3, -1, 1, Q("249.0132 mm")),
    Sketcher.Constraint("DistanceX", 10, 3, -1, 1, Q("223.6132 mm")),
    Sketcher.Constraint("DistanceX", 11, 3, -1, 1, Q("299.8132 mm")),
    Sketcher.Constraint("DistanceX", 12, 3, -1, 1, Q("274.4132 mm")),
    Sketcher.Constraint("DistanceY", -1, 1, 13, 3, Q("168.4813 mm")),
    Sketcher.Constraint("DistanceY", -1, 1, 25, 3, Q("117.6813 mm")),
    Sketcher.Constraint("DistanceY", -1, 1, 37, 3, Q("193.8813 mm")),
    Sketcher.Constraint("DistanceY", -1, 1, 49, 3, Q("92.2813 mm")),
])
pocket2 = body.newObject("PartDesign::Pocket", "Pocket001")
pocket2.Profile = sketch3
pocket2.Length = Q("2 in")

# Sketch on YZ plane
sketch4 = body.newObject("Sketcher::SketchObject", "Sketch003")
sketch4.AttachmentSupport = (doc.getObject("YZ_Plane"), [""])
sketch4.MapMode = "FlatFace"
sketch4.AttachmentOffset = App.Placement(App.Vector(0, 0, 0.125 * 25.4), App.Rotation())
sketch4.addGeometry([
    Part.Circle(App.Vector(-147.4132, 92.2813, 0), App.Vector(0, 0, 1), 3.175),
    Part.Circle(App.Vector(-147.4132, 117.6813, 0), App.Vector(0, 0, 1), 3.175),
    Part.Circle(App.Vector(-147.4132, 193.8813, 0), App.Vector(0, 0, 1), 3.175),
    Part.Circle(App.Vector(-147.4132, 168.4813, 0), App.Vector(0, 0, 1), 3.175),
], False)
sketch4.addConstraint([
    Sketcher.Constraint("Equal", 0, 1),
    Sketcher.Constraint("Equal", 1, 2),
    Sketcher.Constraint("Equal", 2, 3),
    Sketcher.Constraint("Vertical", 0, 3, 1, 3),
    Sketcher.Constraint("Vertical", 1, 3, 2, 3),
    Sketcher.Constraint("Vertical", 2, 3, 3, 3),
    Sketcher.Constraint("Diameter", 0, Q("0.25 in")),
    Sketcher.Constraint("DistanceY", 0, 3, 1, 3, Q("1 in")),
    Sketcher.Constraint("DistanceY", 3, 3, 2, 3, Q("1 in")),
    Sketcher.Constraint("DistanceY", 1, 3, 2, 3, Q("3 in")),
    Sketcher.Constraint("DistanceX", 0, 3, -1, 1, Q("147.4132 mm")),
    Sketcher.Constraint("DistanceY", -1, 1, 0, 3, Q("92.2813 mm")),
])
pocket3 = body.newObject("PartDesign::Pocket", "Pocket002")
pocket3.Profile = sketch4
pocket3.Length = Q("2 in")

# Sketch on YZ plane
sketch5 = body.newObject("Sketcher::SketchObject", "Sketch004")
sketch5.AttachmentSupport = (doc.getObject("YZ_Plane"), [""])
sketch5.MapMode = "FlatFace"
sketch5.AttachmentOffset = App.Placement(App.Vector(0, 0, 0.125 * 25.4), App.Rotation())
sketch5.addGeometry([
    Part.Circle(App.Vector(-249.0132, 244.6813, 0), App.Vector(0, 0, 1), 7.9375),
    Part.Circle(App.Vector(-249.0132, 41.4813, 0), App.Vector(0, 0, 1), 7.9375),
    Part.Circle(App.Vector(-45.8132, 244.6813, 0), App.Vector(0, 0, 1), 7.9375),
    Part.Circle(App.Vector(-45.8132, 41.4813, 0), App.Vector(0, 0, 1), 7.9375),
], False)
sketch5.addConstraint([
    Sketcher.Constraint("Equal", 0, 1),
    Sketcher.Constraint("Equal", 1, 2),
    Sketcher.Constraint("Equal", 2, 3),
    Sketcher.Constraint("Horizontal", 0, 3, 2, 3),
    Sketcher.Constraint("Horizontal", 1, 3, 3, 3),
    Sketcher.Constraint("Vertical", 0, 3, 1, 3),
    Sketcher.Constraint("Vertical", 2, 3, 3, 3),
    Sketcher.Constraint("Diameter", 0, Q("0.625 in")),
    Sketcher.Constraint("DistanceY", 1, 3, 0, 3, Q("8 in")),
    Sketcher.Constraint("DistanceX", 0, 3, 2, 3, Q("8 in")),
    Sketcher.Constraint("DistanceX", 0, 3, -1, 1, Q("249.0132 mm")),
    Sketcher.Constraint("DistanceY", -1, 1, 0, 3, Q("244.6813 mm")),
])
pocket4 = body.newObject("PartDesign::Pocket", "Pocket003")
pocket4.Profile = sketch5
pocket4.Length = Q("36 in")

doc.recompute()
